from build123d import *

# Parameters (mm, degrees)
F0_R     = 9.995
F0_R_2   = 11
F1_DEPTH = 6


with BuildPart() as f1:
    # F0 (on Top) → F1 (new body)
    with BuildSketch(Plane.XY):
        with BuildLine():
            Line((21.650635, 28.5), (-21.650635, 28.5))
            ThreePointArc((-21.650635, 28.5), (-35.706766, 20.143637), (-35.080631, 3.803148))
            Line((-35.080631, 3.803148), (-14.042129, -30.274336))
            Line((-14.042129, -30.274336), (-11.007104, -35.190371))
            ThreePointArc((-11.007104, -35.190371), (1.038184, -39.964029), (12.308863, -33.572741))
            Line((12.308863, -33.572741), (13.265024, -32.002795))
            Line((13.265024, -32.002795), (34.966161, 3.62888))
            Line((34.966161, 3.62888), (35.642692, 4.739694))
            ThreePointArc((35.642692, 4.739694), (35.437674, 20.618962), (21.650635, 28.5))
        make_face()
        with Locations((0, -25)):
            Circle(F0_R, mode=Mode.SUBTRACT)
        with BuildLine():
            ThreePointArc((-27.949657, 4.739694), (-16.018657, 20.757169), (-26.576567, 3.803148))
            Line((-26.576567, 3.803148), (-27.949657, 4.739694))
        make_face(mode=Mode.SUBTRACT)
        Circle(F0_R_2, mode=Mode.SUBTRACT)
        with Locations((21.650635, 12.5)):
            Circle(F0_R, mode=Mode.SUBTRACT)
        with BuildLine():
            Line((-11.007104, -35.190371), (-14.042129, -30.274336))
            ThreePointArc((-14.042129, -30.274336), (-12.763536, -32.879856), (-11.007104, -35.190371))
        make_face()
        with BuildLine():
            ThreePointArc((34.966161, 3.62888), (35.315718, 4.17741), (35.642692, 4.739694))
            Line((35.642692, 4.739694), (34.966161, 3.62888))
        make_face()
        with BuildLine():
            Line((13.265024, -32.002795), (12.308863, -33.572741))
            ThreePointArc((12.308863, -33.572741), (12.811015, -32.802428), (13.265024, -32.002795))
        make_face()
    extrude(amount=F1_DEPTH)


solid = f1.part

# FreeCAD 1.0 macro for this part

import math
import FreeCAD as App
import Part
import Sketcher
from FreeCAD import Vector

doc = App.newDocument("Part")
body = doc.addObject("PartDesign::Body", "Body")

# Sketch on XY plane
sketch1 = doc.addObject("Sketcher::SketchObject", "Sketch")
body.addObject(sketch1)
sketch1.AttachmentSupport = (doc.XY_Plane, [""])
sketch1.MapMode = "FlatFace"
sketch1.addGeometry(Part.LineSegment(Vector(21.650635, 28.5, 0), Vector(-21.650635, 28.5, 0)), False)
sketch1.addGeometry(Part.ArcOfCircle(Part.Circle(Vector(-21.650635, 12.499999, 0), Vector(0, 0, 1), 16.000001), math.radians(90.000001), math.radians(212.925849)), False)
sketch1.addGeometry(Part.LineSegment(Vector(-35.080631, 3.803148, 0), Vector(-14.042129, -30.274336, 0)), False)
sketch1.addGeometry(Part.ArcOfCircle(Part.Circle(Vector(0.000032, -24.999979, 0), Vector(0, 0, 1), 15.000038), math.radians(-159.413389), math.radians(-137.206525)), False)
sketch1.addGeometry(Part.ArcOfCircle(Part.Circle(Vector(0, -24.999999, 0), Vector(0, 0, 1), 15), math.radians(-137.206497), math.radians(-34.856016)), False)
sketch1.addGeometry(Part.ArcOfCircle(Part.Circle(Vector(-0.000152, -24.999907, 0), Vector(0, 0, 1), 15.000178), math.radians(-34.855975), math.radians(-27.830256)), False)
sketch1.addGeometry(Part.LineSegment(Vector(13.265024, -32.002795, 0), Vector(34.966161, 3.62888, 0)), False)
sketch1.addGeometry(Part.ArcOfCircle(Part.Circle(Vector(21.650384, 12.500155, 0), Vector(0, 0, 1), 16.000295), math.radians(-33.672461), math.radians(-29.013776)), False)
sketch1.addGeometry(Part.ArcOfCircle(Part.Circle(Vector(21.650634, 12.499999, 0), Vector(0, 0, 1), 16.000001), math.radians(-29.013722), math.radians(89.999997)), False)
sketch1.addGeometry(Part.Circle(Vector(0, -25, 0), Vector(0, 0, 1), 9.995), False)
sketch1.addGeometry(Part.Circle(Vector(0, 0, 0), Vector(0, 0, 1), 11), False)
sketch1.addGeometry(Part.LineSegment(Vector(-26.576567, 3.803148, 0), Vector(-27.949657, 4.739694, 0)), False)
sketch1.addGeometry(Part.ArcOfCircle(Part.Circle(Vector(-21.650632, 12.499997, 0), Vector(0, 0, 1), 9.995), math.radians(-119.527413), math.radians(230.93382)), False)
sketch1.addGeometry(Part.Circle(Vector(21.650635, 12.5, 0), Vector(0, 0, 1), 9.995), False)
sketch1.addConstraint(Sketcher.Constraint("Tangent", 0, 2, 1, 1))
sketch1.addConstraint(Sketcher.Constraint("Coincident", 1, 2, 2, 1))
sketch1.addConstraint(Sketcher.Constraint("Coincident", 2, 2, 3, 1))
sketch1.addConstraint(Sketcher.Constraint("Tangent", 3, 2, 4, 1))
sketch1.addConstraint(Sketcher.Constraint("Tangent", 4, 2, 5, 1))
sketch1.addConstraint(Sketcher.Constraint("Coincident", 5, 2, 6, 1))
sketch1.addConstraint(Sketcher.Constraint("Coincident", 6, 2, 7, 1))
sketch1.addConstraint(Sketcher.Constraint("Tangent", 7, 2, 8, 1))
sketch1.addConstraint(Sketcher.Constraint("Tangent", 8, 2, 0, 1))
sketch1.addConstraint(Sketcher.Constraint("Coincident", 11, 1, 12, 1))
sketch1.addConstraint(Sketcher.Constraint("Coincident", 12, 2, 11, 2))
sketch1.addConstraint(Sketcher.Constraint("Horizontal", 0))
sketch1.addConstraint(Sketcher.Constraint("Coincident", 10, 3, -1, 1))
sketch1.addConstraint(Sketcher.Constraint("Coincident", 9, 3, 4, 3))
sketch1.addConstraint(Sketcher.Constraint("Coincident", 12, 3, 1, 3))
sketch1.addConstraint(Sketcher.Constraint("Coincident", 13, 3, 8, 3))
sketch1.addConstraint(Sketcher.Constraint("Equal", 1, 8))
sketch1.addConstraint(Sketcher.Constraint("Equal", 9, 12))
sketch1.addConstraint(Sketcher.Constraint("Equal", 12, 13))
sketch1.addConstraint(Sketcher.Constraint("PointOnObject", 4, 3, -2))
sketch1.addConstraint(Sketcher.Constraint("Horizontal", 1, 2, 11, 1))
sketch1.addConstraint(Sketcher.Constraint("Horizontal", 7, 2, 12, 2))
sketch1.addConstraint(Sketcher.Constraint("Diameter", 10, 22.0))
sketch1.addConstraint(Sketcher.Constraint("Radius", 1, 16.000001))
sketch1.addConstraint(Sketcher.Constraint("Radius", 4, 15.0))
sketch1.addConstraint(Sketcher.Constraint("Diameter", 9, 19.99))
sketch1.addConstraint(Sketcher.Constraint("DistanceY", 4, 3, -1, 1, 24.999999))
sketch1.addConstraint(Sketcher.Constraint("DistanceY", -1, 1, 1, 3, 12.499999))
sketch1.addConstraint(Sketcher.Constraint("DistanceX", 1, 2, 12, 3, 13.429999))
sketch1.addConstraint(Sketcher.Constraint("Radius", 3, 15.000038))
sketch1.addConstraint(Sketcher.Constraint("Radius", 5, 15.000178))
sketch1.addConstraint(Sketcher.Constraint("Radius", 7, 16.000295))
sketch1.addConstraint(Sketcher.Constraint("DistanceX", 0, 2, 0, 1, 43.30127))
sketch1.addConstraint(Sketcher.Constraint("DistanceX", 3, 3, 8, 3, 21.650602))
sketch1.addConstraint(Sketcher.Constraint("Distance", 2, 40.048639))
sketch1.addConstraint(Sketcher.Constraint("DistanceY", 3, 2, -1, 1, 35.190371))
sketch1.addConstraint(Sketcher.Constraint("DistanceY", 4, 2, -1, 1, 33.572741))
sketch1.addConstraint(Sketcher.Constraint("DistanceX", -1, 1, 6, 2, 34.966161))
sketch1.addConstraint(Sketcher.Constraint("DistanceX", 4, 2, 5, 2, 0.956161))
sketch1.addConstraint(Sketcher.Constraint("DistanceX", 6, 2, 7, 2, 0.676531))
pad1 = doc.addObject("PartDesign::Pad", "Pad")
body.addObject(pad1)
pad1.Profile = sketch1
pad1.Length = 6

doc.recompute()
